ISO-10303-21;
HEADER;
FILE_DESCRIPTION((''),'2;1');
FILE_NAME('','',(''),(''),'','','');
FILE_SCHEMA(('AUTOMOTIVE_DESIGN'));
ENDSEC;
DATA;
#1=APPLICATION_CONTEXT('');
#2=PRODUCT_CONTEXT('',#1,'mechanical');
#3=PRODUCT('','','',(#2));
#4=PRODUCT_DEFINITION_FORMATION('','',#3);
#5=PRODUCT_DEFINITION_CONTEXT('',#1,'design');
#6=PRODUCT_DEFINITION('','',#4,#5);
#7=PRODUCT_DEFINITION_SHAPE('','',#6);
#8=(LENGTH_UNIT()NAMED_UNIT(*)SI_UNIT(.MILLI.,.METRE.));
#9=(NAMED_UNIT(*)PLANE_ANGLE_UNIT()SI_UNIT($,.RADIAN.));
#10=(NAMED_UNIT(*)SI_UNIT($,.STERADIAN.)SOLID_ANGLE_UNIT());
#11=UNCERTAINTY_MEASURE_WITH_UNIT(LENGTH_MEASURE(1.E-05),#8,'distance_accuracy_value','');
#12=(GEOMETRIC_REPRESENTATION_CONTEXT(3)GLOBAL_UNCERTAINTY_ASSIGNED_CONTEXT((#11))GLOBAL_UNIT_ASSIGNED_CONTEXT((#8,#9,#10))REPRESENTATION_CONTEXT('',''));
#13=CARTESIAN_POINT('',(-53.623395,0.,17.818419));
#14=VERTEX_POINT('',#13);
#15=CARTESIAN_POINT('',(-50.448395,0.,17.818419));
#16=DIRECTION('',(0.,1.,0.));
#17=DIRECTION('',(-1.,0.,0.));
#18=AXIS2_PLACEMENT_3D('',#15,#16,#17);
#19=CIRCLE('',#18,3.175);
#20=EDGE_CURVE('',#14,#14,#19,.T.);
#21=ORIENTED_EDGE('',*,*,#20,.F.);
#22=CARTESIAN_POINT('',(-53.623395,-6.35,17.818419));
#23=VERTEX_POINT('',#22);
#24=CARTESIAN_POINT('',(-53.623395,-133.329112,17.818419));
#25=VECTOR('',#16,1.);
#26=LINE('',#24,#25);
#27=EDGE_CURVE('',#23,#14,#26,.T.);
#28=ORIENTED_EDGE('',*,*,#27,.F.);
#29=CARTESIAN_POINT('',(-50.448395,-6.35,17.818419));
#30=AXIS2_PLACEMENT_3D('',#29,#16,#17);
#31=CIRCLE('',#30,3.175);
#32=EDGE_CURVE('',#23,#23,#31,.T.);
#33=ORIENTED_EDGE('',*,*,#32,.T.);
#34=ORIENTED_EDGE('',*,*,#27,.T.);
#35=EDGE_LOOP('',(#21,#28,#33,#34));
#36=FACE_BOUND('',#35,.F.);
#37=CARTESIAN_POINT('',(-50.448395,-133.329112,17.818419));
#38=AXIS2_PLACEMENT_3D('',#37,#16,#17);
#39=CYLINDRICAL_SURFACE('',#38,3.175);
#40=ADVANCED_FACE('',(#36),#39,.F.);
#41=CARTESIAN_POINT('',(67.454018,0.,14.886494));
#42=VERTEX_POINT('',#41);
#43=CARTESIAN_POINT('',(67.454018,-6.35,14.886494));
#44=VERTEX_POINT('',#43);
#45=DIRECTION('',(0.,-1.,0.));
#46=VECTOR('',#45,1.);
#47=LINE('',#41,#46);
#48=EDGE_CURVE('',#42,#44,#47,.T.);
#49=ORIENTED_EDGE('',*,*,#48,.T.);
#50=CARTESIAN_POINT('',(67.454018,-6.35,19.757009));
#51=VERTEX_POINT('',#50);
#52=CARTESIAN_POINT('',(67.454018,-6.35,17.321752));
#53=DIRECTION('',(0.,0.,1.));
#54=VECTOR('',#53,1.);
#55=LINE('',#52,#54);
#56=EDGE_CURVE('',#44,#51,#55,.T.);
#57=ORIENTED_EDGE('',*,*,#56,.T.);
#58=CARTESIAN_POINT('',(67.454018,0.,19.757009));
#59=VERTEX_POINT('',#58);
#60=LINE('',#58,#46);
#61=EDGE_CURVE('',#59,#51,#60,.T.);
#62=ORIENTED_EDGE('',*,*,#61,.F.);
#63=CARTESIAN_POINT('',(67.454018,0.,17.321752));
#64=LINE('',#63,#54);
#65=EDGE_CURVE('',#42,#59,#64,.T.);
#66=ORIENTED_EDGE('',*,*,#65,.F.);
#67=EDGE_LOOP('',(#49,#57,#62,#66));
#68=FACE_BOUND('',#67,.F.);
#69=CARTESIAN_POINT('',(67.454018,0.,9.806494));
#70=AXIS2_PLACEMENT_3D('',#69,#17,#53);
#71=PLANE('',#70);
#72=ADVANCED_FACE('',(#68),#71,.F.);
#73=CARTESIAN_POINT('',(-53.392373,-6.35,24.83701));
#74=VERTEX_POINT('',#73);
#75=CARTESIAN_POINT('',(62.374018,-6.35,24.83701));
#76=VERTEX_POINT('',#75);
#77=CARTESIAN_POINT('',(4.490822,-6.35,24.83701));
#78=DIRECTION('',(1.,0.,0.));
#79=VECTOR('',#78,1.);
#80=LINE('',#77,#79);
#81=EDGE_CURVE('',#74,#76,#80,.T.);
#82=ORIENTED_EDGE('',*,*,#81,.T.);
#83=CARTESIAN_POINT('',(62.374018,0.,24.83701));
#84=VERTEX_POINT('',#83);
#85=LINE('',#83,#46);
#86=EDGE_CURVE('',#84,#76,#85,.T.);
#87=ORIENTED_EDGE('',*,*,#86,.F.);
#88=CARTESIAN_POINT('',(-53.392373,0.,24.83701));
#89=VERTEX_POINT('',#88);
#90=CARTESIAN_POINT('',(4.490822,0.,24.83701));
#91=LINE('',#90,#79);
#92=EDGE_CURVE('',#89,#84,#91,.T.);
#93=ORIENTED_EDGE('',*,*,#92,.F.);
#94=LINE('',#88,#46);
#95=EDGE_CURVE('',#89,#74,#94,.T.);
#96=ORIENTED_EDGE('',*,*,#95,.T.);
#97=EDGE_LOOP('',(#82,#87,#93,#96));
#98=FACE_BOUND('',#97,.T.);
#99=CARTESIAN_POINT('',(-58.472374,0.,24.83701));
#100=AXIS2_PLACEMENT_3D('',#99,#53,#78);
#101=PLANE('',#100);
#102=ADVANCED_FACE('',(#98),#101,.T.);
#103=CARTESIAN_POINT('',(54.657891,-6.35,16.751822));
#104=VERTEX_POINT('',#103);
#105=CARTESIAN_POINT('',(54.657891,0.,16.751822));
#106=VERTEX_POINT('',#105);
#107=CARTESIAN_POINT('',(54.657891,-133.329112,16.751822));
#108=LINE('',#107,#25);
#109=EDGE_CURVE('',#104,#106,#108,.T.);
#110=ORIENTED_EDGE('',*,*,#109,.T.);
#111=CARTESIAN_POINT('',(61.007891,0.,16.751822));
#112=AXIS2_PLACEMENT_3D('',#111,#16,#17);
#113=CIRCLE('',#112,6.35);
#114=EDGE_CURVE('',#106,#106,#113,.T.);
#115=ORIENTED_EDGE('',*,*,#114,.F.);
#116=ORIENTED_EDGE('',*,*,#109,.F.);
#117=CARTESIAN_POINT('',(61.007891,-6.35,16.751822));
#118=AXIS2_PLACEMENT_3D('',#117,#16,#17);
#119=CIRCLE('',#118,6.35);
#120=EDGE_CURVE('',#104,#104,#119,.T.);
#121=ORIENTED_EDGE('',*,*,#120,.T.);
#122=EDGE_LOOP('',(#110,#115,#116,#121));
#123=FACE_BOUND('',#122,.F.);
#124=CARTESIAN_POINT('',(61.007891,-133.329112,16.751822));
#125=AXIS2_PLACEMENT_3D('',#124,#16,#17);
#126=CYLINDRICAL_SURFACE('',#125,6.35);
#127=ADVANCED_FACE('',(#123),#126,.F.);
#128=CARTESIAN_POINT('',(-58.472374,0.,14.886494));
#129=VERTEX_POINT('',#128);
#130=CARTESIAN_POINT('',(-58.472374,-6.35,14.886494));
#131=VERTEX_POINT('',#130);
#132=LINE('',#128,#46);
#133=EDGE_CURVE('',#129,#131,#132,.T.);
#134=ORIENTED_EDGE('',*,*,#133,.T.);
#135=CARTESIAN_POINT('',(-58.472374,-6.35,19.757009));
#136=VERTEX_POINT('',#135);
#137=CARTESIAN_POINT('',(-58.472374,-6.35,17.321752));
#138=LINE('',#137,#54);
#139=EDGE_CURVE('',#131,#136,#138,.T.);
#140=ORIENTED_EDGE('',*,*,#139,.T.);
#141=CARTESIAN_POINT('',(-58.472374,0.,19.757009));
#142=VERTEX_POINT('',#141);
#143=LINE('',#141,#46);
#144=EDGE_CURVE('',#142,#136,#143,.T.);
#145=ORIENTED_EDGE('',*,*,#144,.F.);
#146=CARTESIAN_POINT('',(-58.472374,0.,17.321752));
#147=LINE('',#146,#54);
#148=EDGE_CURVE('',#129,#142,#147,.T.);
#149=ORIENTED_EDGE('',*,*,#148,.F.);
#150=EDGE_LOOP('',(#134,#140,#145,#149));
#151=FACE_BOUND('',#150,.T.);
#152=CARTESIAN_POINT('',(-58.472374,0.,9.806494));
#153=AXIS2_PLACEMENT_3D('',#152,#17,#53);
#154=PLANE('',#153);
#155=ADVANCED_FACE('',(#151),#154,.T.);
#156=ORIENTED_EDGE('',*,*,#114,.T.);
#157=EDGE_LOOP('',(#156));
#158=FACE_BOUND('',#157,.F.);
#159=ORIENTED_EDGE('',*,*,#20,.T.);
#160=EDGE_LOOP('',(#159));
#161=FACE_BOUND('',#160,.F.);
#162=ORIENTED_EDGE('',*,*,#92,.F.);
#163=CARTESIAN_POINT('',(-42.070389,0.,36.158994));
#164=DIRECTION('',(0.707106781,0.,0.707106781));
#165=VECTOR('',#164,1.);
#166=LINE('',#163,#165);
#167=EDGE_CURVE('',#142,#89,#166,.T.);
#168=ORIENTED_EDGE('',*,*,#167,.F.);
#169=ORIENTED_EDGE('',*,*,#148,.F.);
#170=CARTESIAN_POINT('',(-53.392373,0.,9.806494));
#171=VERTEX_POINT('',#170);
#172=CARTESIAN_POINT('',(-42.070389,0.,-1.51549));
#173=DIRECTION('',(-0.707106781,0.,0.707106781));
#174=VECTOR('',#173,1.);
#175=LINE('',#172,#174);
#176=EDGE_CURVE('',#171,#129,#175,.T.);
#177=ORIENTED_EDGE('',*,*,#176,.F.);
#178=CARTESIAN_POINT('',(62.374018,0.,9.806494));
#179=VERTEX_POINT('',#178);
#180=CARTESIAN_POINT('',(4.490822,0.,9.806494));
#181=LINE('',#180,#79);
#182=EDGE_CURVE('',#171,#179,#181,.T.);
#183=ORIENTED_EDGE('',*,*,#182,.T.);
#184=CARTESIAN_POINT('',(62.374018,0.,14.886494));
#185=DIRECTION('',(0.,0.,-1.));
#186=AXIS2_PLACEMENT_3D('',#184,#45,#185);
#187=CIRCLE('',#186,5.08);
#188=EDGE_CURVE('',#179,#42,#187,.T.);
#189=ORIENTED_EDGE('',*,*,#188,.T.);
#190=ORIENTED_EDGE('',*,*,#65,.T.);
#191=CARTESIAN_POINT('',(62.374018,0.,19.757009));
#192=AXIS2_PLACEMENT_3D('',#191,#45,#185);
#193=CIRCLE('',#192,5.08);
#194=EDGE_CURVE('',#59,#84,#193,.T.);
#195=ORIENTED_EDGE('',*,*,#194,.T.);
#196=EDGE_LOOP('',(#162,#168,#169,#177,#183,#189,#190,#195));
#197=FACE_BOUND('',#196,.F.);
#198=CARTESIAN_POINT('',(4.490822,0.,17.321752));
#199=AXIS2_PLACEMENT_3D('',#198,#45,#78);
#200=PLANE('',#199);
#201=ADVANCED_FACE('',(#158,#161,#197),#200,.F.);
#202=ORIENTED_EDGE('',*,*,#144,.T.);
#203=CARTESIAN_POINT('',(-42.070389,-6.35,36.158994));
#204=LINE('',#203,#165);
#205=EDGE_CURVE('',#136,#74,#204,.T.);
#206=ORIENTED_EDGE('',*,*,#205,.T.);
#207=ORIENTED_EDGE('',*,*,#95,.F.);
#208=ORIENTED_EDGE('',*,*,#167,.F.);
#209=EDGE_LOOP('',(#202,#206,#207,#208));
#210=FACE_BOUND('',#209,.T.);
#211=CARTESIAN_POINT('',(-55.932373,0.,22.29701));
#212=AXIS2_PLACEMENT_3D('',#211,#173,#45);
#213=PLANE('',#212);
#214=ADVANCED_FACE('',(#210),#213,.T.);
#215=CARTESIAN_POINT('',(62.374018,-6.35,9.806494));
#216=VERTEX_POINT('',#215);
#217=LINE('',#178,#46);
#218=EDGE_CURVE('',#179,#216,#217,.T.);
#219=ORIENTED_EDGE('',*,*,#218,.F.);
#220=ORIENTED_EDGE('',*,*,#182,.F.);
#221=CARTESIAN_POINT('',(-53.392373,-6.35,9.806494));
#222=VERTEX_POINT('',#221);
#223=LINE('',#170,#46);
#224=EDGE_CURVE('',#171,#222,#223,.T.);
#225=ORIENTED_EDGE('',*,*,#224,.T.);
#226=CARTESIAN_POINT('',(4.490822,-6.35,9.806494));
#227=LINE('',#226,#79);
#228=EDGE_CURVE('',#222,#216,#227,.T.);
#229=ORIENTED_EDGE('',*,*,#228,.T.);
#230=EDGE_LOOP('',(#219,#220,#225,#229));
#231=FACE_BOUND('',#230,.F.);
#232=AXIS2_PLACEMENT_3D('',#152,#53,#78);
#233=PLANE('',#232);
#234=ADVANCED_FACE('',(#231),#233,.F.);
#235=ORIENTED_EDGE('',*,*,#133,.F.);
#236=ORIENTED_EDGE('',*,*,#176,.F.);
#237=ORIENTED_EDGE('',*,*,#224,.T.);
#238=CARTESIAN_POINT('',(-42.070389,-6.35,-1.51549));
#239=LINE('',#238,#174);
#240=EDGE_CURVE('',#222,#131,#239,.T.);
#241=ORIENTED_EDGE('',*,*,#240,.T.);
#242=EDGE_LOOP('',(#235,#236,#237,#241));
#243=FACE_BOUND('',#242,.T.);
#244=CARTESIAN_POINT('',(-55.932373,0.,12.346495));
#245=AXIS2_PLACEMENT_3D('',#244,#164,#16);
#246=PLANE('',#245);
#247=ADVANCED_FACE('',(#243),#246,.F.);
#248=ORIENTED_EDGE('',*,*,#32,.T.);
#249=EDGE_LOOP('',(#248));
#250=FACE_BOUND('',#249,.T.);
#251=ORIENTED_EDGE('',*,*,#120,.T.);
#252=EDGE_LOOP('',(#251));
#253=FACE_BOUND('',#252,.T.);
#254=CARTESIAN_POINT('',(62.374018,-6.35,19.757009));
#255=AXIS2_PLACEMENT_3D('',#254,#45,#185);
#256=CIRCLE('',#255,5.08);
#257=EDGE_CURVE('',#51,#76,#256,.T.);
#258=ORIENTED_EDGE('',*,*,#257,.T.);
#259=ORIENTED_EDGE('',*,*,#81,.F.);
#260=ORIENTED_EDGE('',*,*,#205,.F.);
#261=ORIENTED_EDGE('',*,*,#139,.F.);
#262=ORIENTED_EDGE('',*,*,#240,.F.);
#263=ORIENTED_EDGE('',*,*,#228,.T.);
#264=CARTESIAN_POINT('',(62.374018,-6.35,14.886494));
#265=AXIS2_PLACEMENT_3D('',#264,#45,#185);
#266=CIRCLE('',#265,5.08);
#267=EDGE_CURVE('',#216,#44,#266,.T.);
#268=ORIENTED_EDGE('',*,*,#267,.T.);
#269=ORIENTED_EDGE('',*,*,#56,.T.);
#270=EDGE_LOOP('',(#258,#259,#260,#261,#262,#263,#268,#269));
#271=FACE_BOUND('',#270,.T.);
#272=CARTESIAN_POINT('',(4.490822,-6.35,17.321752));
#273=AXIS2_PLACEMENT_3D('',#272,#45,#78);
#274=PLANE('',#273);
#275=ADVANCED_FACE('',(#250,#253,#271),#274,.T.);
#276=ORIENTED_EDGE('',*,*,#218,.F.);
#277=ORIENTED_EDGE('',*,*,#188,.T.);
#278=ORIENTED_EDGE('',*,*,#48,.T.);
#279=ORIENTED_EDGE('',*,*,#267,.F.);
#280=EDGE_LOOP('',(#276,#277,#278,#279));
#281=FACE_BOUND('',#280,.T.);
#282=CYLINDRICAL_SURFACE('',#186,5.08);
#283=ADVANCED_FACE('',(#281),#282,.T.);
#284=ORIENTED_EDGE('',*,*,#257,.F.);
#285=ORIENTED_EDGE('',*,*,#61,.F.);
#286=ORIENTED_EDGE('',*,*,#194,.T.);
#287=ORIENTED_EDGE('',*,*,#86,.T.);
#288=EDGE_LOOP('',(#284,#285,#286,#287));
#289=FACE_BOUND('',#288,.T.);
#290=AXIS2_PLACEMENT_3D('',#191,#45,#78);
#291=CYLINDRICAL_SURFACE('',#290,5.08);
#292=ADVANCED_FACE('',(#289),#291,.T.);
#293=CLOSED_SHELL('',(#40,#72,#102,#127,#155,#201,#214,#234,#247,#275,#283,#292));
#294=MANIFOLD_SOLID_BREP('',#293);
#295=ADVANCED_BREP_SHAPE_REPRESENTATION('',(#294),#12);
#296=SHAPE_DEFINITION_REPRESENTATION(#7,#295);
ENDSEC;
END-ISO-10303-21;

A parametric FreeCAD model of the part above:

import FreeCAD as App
import Part
import Sketcher
from FreeCAD import Vector
Q = App.Units.Quantity


def edges_at(feature, points):
    """Names of the edges that pass closest to the given points."""
    edges = feature.Shape.Edges
    near = lambda p: min(range(len(edges)), key=lambda i: edges[i].distToShape(Part.Vertex(*p))[0])
    return sorted({f"Edge{near(p) + 1}" for p in points})


def add_polygon(sketch, points):
    """Adds a closed chain of lines whose ends are joined by coincident constraints."""
    first, n = sketch.GeometryCount, len(points)
    for a, b in zip(points, points[1:] + points[:1]):
        sketch.addGeometry(Part.LineSegment(App.Vector(*a, 0), App.Vector(*b, 0)), False)
    for i in range(n):
        sketch.addConstraint(Sketcher.Constraint("Coincident", first + i, 2, first + (i + 1) % n, 1))

doc = App.newDocument("Part")
body = doc.addObject("PartDesign::Body", "Body")

# Sketch on XZ plane
sketch1 = doc.addObject("Sketcher::SketchObject", "Sketch")
body.addObject(sketch1)
sketch1.AttachmentSupport = (doc.XZ_Plane, [""])
sketch1.MapMode = "FlatFace"
add_polygon(sketch1, [(-58, 25), (-58, 10), (67, 10), (67, 25)])  # lines 0-3
sketch1.addConstraint([
    Sketcher.Constraint("Vertical", 0),
    Sketcher.Constraint("Horizontal", 1),
    Sketcher.Constraint("Vertical", 2),
    Sketcher.Constraint("Horizontal", 3),
    Sketcher.Constraint("DistanceX", 1, 1, 1, 2, Q("125.926391 mm")),
    Sketcher.Constraint("DistanceY", 0, 2, 0, 1, Q("15.030515 mm")),
    Sketcher.Constraint("DistanceY", -1, 1, 2, 2, Q("24.83701 mm")),
    Sketcher.Constraint("DistanceX", 0, 2, -1, 1, Q("58.472374 mm")),
])
pad1 = doc.addObject("PartDesign::Pad", "Pad")
body.addObject(pad1)
pad1.Profile = sketch1
pad1.Length = Q("0.25 in")
doc.recompute()

fillet = doc.addObject("PartDesign::Fillet", "Fillet")
body.addObject(fillet)
fillet.Base = (pad1, edges_at(pad1, [(67.454, -3.175, 24.837), (67.454, -3.175, 9.806)]))
fillet.Radius = Q("0.2 in")
doc.recompute()

chamfer = doc.addObject("PartDesign::Chamfer", "Chamfer")
body.addObject(chamfer)
chamfer.Base = (fillet, edges_at(fillet, [(-58.472, -3.175, 24.837), (-58.472, -3.175, 9.806)]))
chamfer.Size = Q("0.2 in")

# Sketch on XZ plane
sketch2 = doc.addObject("Sketcher::SketchObject", "Sketch001")
body.addObject(sketch2)
sketch2.AttachmentSupport = (doc.XZ_Plane, [""])
sketch2.MapMode = "FlatFace"
sketch2.AttachmentOffset = App.Placement(Vector(0, 0, 0.25 * 25.4), App.Rotation())
sketch2.addGeometry(Part.Circle(Vector(61, 17, 0), Vector(0, 0, 1), 6), False)
sketch2.addConstraint([
    Sketcher.Constraint("Diameter", 0, Q("0.5 in")),
    Sketcher.Constraint("DistanceX", -1, 1, 0, 3, Q("61.007891 mm")),
    Sketcher.Constraint("DistanceY", -1, 1, 0, 3, Q("16.751822 mm")),
])
doc.recompute()
hole = doc.addObject("PartDesign::Hole", "Hole")
body.addObject(hole)
hole.Profile = sketch2
hole.ThreadType = "None"
hole.Diameter = Q("0.5 in")
hole.DepthType = "ThroughAll"

# Sketch on XZ plane
sketch3 = doc.addObject("Sketcher::SketchObject", "Sketch002")
body.addObject(sketch3)
sketch3.AttachmentSupport = (doc.XZ_Plane, [""])
sketch3.MapMode = "FlatFace"
sketch3.AttachmentOffset = App.Placement(Vector(0, 0, 0.25 * 25.4), App.Rotation())
sketch3.addGeometry(Part.Circle(Vector(-50.4, 17.8, 0), Vector(0, 0, 1), 3.2), False)
sketch3.addConstraint([
    Sketcher.Constraint("Diameter", 0, Q("0.25 in")),
    Sketcher.Constraint("DistanceY", -1, 1, 0, 3, Q("17.818419 mm")),
    Sketcher.Constraint("DistanceX", 0, 3, -1, 1, Q("50.448395 mm")),
])
doc.recompute()
hole2 = doc.addObject("PartDesign::Hole", "Hole001")
body.addObject(hole2)
hole2.Profile = sketch3
hole2.ThreadType = "None"
hole2.Diameter = Q("0.25 in")
hole2.DepthType = "ThroughAll"

doc.recompute()
